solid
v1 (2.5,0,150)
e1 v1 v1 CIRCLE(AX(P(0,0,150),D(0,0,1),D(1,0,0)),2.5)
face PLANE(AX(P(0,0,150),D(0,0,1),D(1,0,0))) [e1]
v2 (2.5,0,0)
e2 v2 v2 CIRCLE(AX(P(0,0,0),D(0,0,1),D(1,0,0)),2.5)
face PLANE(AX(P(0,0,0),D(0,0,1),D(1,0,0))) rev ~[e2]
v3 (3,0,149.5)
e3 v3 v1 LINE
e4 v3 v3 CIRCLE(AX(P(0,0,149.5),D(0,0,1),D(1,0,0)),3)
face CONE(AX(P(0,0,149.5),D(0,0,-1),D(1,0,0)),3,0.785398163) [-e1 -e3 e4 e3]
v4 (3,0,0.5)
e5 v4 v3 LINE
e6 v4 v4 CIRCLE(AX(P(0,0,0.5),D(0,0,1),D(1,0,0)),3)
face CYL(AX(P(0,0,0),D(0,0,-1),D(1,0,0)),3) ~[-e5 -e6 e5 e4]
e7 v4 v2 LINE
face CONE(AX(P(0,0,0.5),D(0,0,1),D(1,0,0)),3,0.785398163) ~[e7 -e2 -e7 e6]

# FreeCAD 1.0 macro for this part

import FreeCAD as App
import Part
import Sketcher
Q = App.Units.Quantity


def edges_at(feature, points):
    """Names of the edges that pass closest to the given points."""
    edges = feature.Shape.Edges
    near = lambda p: min(range(len(edges)), key=lambda i: edges[i].distToShape(Part.Vertex(*p))[0])
    return sorted({f"Edge{near(p) + 1}" for p in points})

doc = App.newDocument("Part")
body = doc.addObject("PartDesign::Body", "Body")

# Sketch on XY plane
sketch1 = body.newObject("Sketcher::SketchObject", "Sketch")
sketch1.AttachmentSupport = (doc.getObject("XY_Plane"), [""])
sketch1.MapMode = "FlatFace"
sketch1.addGeometry(Part.Circle(App.Vector(0, 0, 0), App.Vector(0, 0, 1), 3), False)
sketch1.addConstraint(Sketcher.Constraint("Coincident", 0, 3, -1, 1))
sketch1.addConstraint(Sketcher.Constraint("Diameter", 0, Q("6 mm")))
pad1 = body.newObject("PartDesign::Pad", "Pad")
pad1.Profile = sketch1
pad1.Length = 150
doc.recompute()

chamfer = body.newObject("PartDesign::Chamfer", "Chamfer")
chamfer.Base = (pad1, edges_at(pad1, [(-3, 0, 0)]))
chamfer.Size = 0.5
doc.recompute()

chamfer2 = body.newObject("PartDesign::Chamfer", "Chamfer001")
chamfer2.Base = (chamfer, edges_at(chamfer, [(-3, 0, 150)]))
chamfer2.Size = 0.5

doc.recompute()
